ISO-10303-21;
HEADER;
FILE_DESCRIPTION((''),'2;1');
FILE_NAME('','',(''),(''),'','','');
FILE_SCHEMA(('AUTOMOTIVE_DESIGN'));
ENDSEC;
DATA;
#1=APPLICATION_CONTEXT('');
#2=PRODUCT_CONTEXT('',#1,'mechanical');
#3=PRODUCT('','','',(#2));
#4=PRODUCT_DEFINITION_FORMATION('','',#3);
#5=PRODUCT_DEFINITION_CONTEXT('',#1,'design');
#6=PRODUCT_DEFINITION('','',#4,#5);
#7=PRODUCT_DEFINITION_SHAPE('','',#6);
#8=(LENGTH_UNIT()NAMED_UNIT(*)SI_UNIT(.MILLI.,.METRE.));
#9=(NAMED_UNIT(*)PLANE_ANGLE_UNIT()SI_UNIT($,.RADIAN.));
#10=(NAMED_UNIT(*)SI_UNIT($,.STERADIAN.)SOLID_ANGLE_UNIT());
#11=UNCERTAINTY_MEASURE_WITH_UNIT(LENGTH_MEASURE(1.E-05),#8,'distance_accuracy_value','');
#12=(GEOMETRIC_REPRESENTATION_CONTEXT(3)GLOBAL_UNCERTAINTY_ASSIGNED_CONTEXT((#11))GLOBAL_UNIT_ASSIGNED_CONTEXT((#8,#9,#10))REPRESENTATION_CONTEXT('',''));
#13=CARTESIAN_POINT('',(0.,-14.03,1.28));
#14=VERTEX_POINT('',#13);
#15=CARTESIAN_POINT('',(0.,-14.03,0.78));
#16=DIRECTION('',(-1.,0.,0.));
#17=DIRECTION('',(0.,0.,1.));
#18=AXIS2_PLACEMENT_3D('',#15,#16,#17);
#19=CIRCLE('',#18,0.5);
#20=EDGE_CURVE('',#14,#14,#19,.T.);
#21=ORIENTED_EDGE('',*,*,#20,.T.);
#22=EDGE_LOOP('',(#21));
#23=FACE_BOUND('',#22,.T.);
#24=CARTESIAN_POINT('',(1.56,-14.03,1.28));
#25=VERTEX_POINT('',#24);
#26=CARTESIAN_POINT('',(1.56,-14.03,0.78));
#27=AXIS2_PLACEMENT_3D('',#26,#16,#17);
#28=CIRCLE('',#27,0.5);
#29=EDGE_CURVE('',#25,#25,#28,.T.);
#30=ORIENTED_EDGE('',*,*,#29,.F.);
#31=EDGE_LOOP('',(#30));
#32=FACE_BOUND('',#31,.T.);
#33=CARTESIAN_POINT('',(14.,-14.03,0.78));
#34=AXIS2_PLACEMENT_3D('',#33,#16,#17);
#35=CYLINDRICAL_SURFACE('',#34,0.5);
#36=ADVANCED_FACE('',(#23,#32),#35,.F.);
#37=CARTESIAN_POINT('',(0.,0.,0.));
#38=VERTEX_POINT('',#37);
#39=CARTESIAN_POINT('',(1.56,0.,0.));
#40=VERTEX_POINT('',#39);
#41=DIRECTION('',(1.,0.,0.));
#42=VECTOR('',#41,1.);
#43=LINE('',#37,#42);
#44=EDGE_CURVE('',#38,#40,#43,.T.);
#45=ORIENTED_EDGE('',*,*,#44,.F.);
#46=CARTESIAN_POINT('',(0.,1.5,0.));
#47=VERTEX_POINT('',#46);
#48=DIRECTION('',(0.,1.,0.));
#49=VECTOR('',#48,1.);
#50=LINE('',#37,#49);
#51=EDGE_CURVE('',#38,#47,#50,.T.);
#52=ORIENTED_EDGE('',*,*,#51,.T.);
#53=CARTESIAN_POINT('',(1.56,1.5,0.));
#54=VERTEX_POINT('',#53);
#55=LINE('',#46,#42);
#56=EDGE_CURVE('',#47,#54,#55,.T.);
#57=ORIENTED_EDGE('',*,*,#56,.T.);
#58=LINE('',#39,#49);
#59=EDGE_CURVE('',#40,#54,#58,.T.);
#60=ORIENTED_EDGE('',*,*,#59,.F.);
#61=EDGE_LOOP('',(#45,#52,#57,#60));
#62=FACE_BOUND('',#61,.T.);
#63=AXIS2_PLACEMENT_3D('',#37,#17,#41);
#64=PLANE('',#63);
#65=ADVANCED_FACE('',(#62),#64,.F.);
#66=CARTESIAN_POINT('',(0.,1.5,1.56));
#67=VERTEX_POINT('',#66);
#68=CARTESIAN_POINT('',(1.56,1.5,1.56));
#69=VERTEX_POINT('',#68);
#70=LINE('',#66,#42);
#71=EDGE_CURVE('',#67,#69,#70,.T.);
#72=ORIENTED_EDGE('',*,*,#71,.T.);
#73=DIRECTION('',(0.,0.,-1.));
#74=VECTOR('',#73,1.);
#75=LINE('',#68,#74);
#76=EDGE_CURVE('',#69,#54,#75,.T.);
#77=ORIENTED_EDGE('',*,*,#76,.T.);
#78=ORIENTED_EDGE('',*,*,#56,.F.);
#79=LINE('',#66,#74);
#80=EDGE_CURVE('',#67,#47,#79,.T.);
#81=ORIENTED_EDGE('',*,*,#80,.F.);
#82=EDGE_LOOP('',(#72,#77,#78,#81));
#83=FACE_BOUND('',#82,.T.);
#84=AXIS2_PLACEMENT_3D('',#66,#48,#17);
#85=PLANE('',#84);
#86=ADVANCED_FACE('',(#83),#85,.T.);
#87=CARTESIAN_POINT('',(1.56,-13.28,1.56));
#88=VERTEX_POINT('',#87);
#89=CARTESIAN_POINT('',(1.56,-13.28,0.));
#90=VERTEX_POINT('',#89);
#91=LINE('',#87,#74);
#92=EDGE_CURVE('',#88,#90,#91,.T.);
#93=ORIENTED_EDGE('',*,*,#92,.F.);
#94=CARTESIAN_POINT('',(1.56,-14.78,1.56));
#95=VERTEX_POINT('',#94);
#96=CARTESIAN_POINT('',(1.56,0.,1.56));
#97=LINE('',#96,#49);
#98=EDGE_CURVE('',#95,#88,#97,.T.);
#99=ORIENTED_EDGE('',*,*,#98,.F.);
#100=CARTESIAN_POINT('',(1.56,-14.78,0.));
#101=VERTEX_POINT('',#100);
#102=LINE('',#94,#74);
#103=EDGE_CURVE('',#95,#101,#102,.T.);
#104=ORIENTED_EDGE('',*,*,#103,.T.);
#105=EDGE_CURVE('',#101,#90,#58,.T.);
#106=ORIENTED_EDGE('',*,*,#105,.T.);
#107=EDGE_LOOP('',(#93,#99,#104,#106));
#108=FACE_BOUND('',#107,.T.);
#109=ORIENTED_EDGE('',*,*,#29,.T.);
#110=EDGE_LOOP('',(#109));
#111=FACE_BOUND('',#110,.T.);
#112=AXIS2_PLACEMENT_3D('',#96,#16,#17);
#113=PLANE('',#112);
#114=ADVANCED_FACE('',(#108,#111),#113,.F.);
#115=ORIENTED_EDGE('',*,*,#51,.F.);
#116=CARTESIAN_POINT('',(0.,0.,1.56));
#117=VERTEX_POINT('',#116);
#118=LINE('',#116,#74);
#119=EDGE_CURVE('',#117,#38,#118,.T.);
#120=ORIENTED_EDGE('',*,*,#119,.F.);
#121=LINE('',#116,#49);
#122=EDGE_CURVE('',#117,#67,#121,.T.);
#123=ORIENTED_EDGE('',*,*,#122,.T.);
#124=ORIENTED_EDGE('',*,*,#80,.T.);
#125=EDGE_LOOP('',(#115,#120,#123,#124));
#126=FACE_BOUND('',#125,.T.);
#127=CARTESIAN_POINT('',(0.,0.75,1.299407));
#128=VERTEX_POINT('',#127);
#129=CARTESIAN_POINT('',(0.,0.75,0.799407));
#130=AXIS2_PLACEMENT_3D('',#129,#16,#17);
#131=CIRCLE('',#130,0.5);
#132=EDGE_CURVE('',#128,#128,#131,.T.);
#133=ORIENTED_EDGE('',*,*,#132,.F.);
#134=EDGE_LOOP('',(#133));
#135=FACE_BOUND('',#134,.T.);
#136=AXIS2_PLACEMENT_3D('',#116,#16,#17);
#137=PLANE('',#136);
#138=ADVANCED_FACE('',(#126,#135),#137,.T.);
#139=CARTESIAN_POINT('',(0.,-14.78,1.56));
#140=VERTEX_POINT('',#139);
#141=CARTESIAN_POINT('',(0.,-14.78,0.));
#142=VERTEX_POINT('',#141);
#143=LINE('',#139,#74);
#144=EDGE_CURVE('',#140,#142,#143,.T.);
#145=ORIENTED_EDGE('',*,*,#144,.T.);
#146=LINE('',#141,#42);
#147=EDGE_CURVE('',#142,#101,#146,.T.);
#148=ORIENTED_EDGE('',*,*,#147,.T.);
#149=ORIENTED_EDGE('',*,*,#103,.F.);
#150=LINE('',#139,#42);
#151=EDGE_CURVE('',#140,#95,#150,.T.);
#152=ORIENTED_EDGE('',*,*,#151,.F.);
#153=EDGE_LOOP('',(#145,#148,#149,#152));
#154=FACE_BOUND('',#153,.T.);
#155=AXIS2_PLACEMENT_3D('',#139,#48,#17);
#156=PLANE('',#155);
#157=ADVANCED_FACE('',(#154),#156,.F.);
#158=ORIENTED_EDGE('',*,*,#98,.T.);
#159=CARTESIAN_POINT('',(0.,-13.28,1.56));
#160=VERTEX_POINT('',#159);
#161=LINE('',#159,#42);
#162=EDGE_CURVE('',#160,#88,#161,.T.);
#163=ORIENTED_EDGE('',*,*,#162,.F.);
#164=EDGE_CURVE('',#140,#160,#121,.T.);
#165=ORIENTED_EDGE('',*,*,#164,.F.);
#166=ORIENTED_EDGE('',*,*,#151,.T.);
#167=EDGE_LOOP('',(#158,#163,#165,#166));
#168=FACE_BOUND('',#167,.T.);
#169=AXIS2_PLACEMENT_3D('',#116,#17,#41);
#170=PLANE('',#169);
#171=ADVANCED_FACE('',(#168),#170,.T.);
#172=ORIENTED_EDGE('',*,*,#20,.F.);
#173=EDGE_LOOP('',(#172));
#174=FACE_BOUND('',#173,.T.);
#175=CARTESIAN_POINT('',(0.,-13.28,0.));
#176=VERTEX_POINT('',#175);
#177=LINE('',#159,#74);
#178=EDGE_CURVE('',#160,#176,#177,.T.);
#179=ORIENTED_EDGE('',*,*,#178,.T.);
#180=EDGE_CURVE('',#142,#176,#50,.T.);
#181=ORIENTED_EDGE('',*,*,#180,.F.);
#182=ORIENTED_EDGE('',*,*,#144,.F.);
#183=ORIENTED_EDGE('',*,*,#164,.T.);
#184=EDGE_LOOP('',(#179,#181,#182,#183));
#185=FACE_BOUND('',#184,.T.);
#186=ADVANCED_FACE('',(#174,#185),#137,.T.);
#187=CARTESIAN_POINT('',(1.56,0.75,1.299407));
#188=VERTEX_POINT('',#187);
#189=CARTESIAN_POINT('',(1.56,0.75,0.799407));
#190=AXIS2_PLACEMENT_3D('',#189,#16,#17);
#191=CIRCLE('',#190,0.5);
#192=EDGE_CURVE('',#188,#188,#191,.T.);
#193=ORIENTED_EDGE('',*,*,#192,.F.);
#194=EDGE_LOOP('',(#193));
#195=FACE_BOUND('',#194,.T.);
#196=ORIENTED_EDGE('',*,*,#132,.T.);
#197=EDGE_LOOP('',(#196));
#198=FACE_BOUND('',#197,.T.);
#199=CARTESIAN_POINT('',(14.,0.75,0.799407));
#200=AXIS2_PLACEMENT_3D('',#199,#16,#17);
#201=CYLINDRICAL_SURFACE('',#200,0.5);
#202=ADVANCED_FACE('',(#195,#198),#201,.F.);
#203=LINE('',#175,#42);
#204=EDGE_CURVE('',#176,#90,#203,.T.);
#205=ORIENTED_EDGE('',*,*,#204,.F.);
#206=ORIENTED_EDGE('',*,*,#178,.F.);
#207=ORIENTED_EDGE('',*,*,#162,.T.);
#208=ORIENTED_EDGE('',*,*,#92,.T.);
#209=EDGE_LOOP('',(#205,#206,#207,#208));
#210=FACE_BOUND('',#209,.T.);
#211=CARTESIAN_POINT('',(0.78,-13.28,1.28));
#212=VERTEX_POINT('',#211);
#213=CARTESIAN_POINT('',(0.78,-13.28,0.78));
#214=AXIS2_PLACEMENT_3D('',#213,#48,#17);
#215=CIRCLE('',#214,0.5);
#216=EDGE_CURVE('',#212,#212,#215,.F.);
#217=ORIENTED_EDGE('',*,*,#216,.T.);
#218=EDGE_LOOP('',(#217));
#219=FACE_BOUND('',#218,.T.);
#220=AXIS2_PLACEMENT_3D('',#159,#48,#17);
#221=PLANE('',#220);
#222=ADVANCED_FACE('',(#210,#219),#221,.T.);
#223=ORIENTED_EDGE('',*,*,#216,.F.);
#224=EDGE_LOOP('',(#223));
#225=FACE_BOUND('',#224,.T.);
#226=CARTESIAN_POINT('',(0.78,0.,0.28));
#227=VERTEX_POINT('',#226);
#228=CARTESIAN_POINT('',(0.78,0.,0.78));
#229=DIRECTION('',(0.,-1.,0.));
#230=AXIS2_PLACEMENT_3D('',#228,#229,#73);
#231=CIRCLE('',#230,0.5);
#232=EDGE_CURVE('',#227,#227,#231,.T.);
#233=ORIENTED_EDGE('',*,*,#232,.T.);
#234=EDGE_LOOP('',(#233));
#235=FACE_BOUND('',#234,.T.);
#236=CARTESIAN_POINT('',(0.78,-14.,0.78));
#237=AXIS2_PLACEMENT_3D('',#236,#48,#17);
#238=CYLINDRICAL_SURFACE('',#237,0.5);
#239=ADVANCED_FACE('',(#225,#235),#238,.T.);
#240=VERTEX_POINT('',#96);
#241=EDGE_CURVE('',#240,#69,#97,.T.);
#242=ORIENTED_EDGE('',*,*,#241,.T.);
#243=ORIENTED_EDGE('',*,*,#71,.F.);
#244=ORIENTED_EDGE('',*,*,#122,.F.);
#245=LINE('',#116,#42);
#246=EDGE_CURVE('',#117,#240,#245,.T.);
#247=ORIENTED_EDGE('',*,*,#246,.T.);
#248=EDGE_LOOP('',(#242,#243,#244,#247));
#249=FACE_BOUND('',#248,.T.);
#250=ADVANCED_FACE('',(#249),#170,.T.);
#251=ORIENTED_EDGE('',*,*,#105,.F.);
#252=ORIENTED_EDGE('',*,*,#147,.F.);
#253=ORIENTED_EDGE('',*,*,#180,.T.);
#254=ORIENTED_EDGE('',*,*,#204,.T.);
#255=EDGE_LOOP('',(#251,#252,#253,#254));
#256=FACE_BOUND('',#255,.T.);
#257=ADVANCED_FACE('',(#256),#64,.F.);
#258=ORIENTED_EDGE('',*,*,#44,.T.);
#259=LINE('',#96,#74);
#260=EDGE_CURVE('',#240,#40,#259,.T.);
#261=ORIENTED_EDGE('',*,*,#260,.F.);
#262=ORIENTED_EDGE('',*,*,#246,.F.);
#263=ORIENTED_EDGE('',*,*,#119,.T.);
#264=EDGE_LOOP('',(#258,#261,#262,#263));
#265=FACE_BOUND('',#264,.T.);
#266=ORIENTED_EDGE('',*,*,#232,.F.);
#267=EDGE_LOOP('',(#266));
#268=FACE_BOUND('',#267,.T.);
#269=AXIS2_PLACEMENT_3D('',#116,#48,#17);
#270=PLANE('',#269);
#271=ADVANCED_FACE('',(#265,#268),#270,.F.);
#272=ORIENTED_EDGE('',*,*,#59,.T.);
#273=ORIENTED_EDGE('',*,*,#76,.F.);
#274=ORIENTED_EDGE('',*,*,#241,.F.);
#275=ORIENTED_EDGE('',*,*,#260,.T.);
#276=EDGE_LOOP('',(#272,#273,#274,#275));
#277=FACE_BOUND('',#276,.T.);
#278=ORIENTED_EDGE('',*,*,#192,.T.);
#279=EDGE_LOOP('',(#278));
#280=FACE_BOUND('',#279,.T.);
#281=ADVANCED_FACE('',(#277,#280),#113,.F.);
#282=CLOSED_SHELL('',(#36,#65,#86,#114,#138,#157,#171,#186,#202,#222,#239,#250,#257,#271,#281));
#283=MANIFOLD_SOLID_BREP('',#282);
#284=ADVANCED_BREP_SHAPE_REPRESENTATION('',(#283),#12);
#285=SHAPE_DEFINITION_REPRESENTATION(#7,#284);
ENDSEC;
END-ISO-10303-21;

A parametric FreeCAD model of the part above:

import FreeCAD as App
import Part
import Sketcher

V = App.Vector
Q = App.Units.Quantity

doc = App.newDocument("Part")
params = doc.addObject("Spreadsheet::Sheet", "Params")
for row, (alias, value) in enumerate([
    ("sketch1_height", "1.5 mm"),
    ("sketch1_width", "1.56 mm"),
    ("pad1_length", "1.56 mm"),
    ("sketch2_diameter", "1 mm"),
    ("pad2_length", "14 mm"),
    ("sketch3_diameter", "1 mm"),
    ("pocket1_length", "14 mm"),
    ("sketch4_diameter", "1 mm"),
    ("pocket2_length", "14 mm"),
], start=1):
    params.set(f"A{row}", alias)
    params.set(f"B{row}", "=" + value)
    params.setAlias(f"B{row}", alias)

body = doc.addObject("PartDesign::Body", "Body")
body.AllowCompound = True

# Sketch on XY plane
sketch1 = body.newObject("Sketcher::SketchObject", "Sketch")
sketch1.AttachmentSupport = (doc.getObject("XY_Plane"), [""])
sketch1.MapMode = "FlatFace"
sketch1.addGeometry(Part.LineSegment(V(0, -13.3, 0), V(0, -14.8, 0)), False)
sketch1.addGeometry(Part.LineSegment(V(0, -14.8, 0), V(1.6, -14.8, 0)), False)
sketch1.addGeometry(Part.LineSegment(V(1.6, -14.8, 0), V(1.6, -13.3, 0)), False)
sketch1.addGeometry(Part.LineSegment(V(1.6, -13.3, 0), V(0, -13.3, 0)), False)
sketch1.addGeometry(Part.LineSegment(V(0, 1.5, 0), V(0, 0, 0)), False)
sketch1.addGeometry(Part.LineSegment(V(0, 0, 0), V(1.6, 0, 0)), False)
sketch1.addGeometry(Part.LineSegment(V(1.6, 0, 0), V(1.6, 1.5, 0)), False)
sketch1.addGeometry(Part.LineSegment(V(1.6, 1.5, 0), V(0, 1.5, 0)), False)
sketch1.addConstraint(Sketcher.Constraint("Coincident", 0, 2, 1, 1))
sketch1.addConstraint(Sketcher.Constraint("Coincident", 1, 2, 2, 1))
sketch1.addConstraint(Sketcher.Constraint("Coincident", 2, 2, 3, 1))
sketch1.addConstraint(Sketcher.Constraint("Coincident", 3, 2, 0, 1))
sketch1.addConstraint(Sketcher.Constraint("Coincident", 4, 2, 5, 1))
sketch1.addConstraint(Sketcher.Constraint("Coincident", 5, 2, 6, 1))
sketch1.addConstraint(Sketcher.Constraint("Coincident", 6, 2, 7, 1))
sketch1.addConstraint(Sketcher.Constraint("Coincident", 7, 2, 4, 1))
sketch1.addConstraint(Sketcher.Constraint("Vertical", 0))
sketch1.addConstraint(Sketcher.Constraint("Horizontal", 1))
sketch1.addConstraint(Sketcher.Constraint("Vertical", 2))
sketch1.addConstraint(Sketcher.Constraint("Horizontal", 3))
sketch1.addConstraint(Sketcher.Constraint("Vertical", 4))
sketch1.addConstraint(Sketcher.Constraint("Horizontal", 5))
sketch1.addConstraint(Sketcher.Constraint("Vertical", 6))
sketch1.addConstraint(Sketcher.Constraint("Horizontal", 7))
sketch1.addConstraint(Sketcher.Constraint("Coincident", 4, 2, -1, 1))
sketch1.addConstraint(Sketcher.Constraint("PointOnObject", 0, 2, -2))
sketch1.addConstraint(Sketcher.Constraint("Vertical", 2, 2, 5, 2))
sketch1.addConstraint(Sketcher.Constraint("Equal", 2, 4))
sketch1.addConstraint(Sketcher.Constraint("DistanceY", 0, 2, 0, 1, Q("1.5 mm")))
sketch1.addConstraint(Sketcher.Constraint("DistanceX", 1, 1, 1, 2, Q("1.56 mm")))
sketch1.addConstraint(Sketcher.Constraint("DistanceY", 0, 2, -1, 1, Q("14.78 mm")))
sketch1.setExpression("Constraints[20]", "Params.sketch1_height")
sketch1.setExpression("Constraints[21]", "Params.sketch1_width")
pad1 = body.newObject("PartDesign::Pad", "Pad")
pad1.Profile = sketch1
pad1.setExpression("Length", "Params.pad1_length")

# Sketch on XZ plane
sketch2 = body.newObject("Sketcher::SketchObject", "Sketch001")
sketch2.AttachmentSupport = (doc.getObject("XZ_Plane"), [""])
sketch2.MapMode = "FlatFace"
sketch2.addGeometry(Part.Circle(V(0.8, 0.8, 0), V(0, 0, 1), 0.5), False)
sketch2.addConstraint(Sketcher.Constraint("Diameter", 0, Q("1 mm")))
sketch2.addConstraint(Sketcher.Constraint("DistanceX", -1, 1, 0, 3, Q("0.78 mm")))
sketch2.addConstraint(Sketcher.Constraint("DistanceY", -1, 1, 0, 3, Q("0.78 mm")))
sketch2.setExpression("Constraints[0]", "Params.sketch2_diameter")
pad2 = body.newObject("PartDesign::Pad", "Pad001")
pad2.Profile = sketch2
pad2.setExpression("Length", "Params.pad2_length")

# Sketch on YZ plane
sketch3 = body.newObject("Sketcher::SketchObject", "Sketch002")
sketch3.AttachmentSupport = (doc.getObject("YZ_Plane"), [""])
sketch3.MapMode = "FlatFace"
sketch3.addGeometry(Part.Circle(V(0.8, 0.8, 0), V(0, 0, 1), 0.5), False)
sketch3.addConstraint(Sketcher.Constraint("Diameter", 0, Q("1 mm")))
sketch3.addConstraint(Sketcher.Constraint("DistanceX", -1, 1, 0, 3, Q("0.75 mm")))
sketch3.addConstraint(Sketcher.Constraint("DistanceY", -1, 1, 0, 3, Q("0.799407 mm")))
sketch3.setExpression("Constraints[0]", "Params.sketch3_diameter")
pocket1 = body.newObject("PartDesign::Pocket", "Pocket")
pocket1.Profile = sketch3
pocket1.setExpression("Length", "Params.pocket1_length")
pocket1.Reversed = True

# Sketch on YZ plane
sketch4 = body.newObject("Sketcher::SketchObject", "Sketch003")
sketch4.AttachmentSupport = (doc.getObject("YZ_Plane"), [""])
sketch4.MapMode = "FlatFace"
sketch4.addGeometry(Part.Circle(V(-14, 0.8, 0), V(0, 0, 1), 0.5), False)
sketch4.addConstraint(Sketcher.Constraint("Diameter", 0, Q("1 mm")))
sketch4.addConstraint(Sketcher.Constraint("DistanceX", 0, 3, -1, 1, Q("14.03 mm")))
sketch4.addConstraint(Sketcher.Constraint("DistanceY", -1, 1, 0, 3, Q("0.78 mm")))
sketch4.setExpression("Constraints[0]", "Params.sketch4_diameter")
pocket2 = body.newObject("PartDesign::Pocket", "Pocket001")
pocket2.Profile = sketch4
pocket2.setExpression("Length", "Params.pocket2_length")
pocket2.Reversed = True

doc.recompute()
